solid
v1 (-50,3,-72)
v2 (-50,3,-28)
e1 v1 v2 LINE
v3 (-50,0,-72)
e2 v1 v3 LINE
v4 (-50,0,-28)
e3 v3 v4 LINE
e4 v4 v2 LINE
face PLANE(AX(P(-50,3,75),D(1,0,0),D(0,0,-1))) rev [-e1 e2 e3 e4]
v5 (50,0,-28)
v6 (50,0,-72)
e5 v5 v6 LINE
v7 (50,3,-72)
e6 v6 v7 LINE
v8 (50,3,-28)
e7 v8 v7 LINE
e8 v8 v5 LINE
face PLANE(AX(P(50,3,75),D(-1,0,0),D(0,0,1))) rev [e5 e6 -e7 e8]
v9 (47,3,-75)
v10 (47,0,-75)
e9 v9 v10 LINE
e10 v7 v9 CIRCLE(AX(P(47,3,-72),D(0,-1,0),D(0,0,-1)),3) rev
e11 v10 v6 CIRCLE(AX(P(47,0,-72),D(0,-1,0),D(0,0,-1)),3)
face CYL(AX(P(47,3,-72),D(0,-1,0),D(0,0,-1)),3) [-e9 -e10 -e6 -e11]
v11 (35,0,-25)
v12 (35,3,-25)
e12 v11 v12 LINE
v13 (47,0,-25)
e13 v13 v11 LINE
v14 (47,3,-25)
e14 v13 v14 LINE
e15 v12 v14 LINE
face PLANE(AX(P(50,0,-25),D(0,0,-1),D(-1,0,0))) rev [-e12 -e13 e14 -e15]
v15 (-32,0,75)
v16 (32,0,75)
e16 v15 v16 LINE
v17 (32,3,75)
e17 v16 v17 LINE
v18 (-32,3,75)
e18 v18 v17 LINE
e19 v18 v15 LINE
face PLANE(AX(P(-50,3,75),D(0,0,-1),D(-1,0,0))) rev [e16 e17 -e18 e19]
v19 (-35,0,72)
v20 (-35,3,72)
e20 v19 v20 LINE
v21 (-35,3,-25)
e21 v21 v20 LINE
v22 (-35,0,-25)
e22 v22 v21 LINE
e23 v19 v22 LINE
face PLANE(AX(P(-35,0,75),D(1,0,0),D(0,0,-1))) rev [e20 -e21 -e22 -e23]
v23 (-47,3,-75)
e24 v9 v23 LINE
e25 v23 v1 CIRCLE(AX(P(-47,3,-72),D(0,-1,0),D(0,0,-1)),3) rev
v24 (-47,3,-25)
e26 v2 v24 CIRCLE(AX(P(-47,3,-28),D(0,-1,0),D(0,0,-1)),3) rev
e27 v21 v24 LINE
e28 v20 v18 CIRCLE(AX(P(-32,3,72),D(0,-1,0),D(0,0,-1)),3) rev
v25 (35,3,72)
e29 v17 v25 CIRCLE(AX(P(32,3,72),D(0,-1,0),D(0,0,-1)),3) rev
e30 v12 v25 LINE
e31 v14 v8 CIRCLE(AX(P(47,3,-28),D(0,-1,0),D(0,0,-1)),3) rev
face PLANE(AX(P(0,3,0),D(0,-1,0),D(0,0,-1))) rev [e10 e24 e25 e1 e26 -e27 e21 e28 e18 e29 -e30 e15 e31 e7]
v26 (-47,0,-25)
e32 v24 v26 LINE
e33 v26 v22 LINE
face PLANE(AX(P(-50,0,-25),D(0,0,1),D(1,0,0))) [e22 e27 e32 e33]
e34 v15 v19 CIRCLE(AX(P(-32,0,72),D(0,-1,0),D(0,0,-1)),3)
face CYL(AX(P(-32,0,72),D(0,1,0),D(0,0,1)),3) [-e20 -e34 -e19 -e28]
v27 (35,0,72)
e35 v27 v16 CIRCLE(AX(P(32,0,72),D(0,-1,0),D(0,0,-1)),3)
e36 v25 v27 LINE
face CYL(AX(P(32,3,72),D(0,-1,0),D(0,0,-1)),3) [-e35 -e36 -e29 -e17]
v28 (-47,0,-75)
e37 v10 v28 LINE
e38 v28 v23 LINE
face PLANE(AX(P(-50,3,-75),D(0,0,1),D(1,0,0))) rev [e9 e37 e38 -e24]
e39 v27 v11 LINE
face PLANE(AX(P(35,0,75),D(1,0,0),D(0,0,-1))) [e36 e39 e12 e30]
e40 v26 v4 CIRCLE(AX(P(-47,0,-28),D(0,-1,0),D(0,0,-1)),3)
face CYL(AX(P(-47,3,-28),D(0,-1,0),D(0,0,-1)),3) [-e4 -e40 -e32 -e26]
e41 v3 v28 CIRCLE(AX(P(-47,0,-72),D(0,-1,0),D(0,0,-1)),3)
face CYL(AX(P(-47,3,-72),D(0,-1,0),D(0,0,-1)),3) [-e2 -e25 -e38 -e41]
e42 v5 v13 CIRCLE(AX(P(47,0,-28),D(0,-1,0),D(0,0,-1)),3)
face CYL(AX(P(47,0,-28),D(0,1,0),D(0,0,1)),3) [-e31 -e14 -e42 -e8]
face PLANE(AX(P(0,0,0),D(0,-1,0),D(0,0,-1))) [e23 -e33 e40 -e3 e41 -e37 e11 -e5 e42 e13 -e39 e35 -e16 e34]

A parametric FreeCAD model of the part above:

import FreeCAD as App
import Part
import Sketcher

V = App.Vector


def edges_at(feature, points):
    """Names of the edges that pass closest to the given points."""
    edges = feature.Shape.Edges
    near = lambda p: min(range(len(edges)), key=lambda i: edges[i].distToShape(Part.Vertex(*p))[0])
    return sorted({f"Edge{near(p) + 1}" for p in points})


def add_polygon(sketch, points):
    """Adds a closed chain of lines whose ends are joined by coincident constraints."""
    first, n = sketch.GeometryCount, len(points)
    for a, b in zip(points, points[1:] + points[:1]):
        sketch.addGeometry(Part.LineSegment(App.Vector(*a, 0), App.Vector(*b, 0)), False)
    for i in range(n):
        sketch.addConstraint(Sketcher.Constraint("Coincident", first + i, 2, first + (i + 1) % n, 1))

doc = App.newDocument("Part")
body = doc.addObject("PartDesign::Body", "Body")

# Sketch on XZ plane
sketch1 = body.newObject("Sketcher::SketchObject", "Sketch")
sketch1.AttachmentSupport = (doc.getObject("XZ_Plane"), [""])
sketch1.MapMode = "FlatFace"
add_polygon(sketch1, [(-50, -75), (-50, 75), (50, 75), (50, -75)])  # lines 0-3
sketch1.addConstraint(Sketcher.Constraint("Vertical", 0))
sketch1.addConstraint(Sketcher.Constraint("Horizontal", 1))
sketch1.addConstraint(Sketcher.Constraint("Vertical", 2))
sketch1.addConstraint(Sketcher.Constraint("Horizontal", 3))
sketch1.addConstraint(Sketcher.Constraint("Symmetric", 0, 2, 2, 2, -1, 1))
sketch1.addConstraint(Sketcher.Constraint("DistanceX", 1, 1, 1, 2, 100.0))
sketch1.addConstraint(Sketcher.Constraint("DistanceY", 0, 1, 0, 2, 150.0))
pad1 = body.newObject("PartDesign::Pad", "Pad")
pad1.Profile = sketch1
pad1.Length = 3
pad1.Reversed = True

# Sketch on XZ plane
sketch2 = body.newObject("Sketcher::SketchObject", "Sketch001")
sketch2.AttachmentSupport = (doc.getObject("XZ_Plane"), [""])
sketch2.MapMode = "FlatFace"
sketch2.AttachmentOffset = App.Placement(V(0, 0, -3), App.Rotation())
add_polygon(sketch2, [(-50, -25), (-50, 75), (-35, 75), (-35, -25)])  # lines 0-3
add_polygon(sketch2, [(35, -25), (35, 75), (50, 75), (50, -25)])  # lines 4-7
sketch2.addConstraint(Sketcher.Constraint("Vertical", 0))
sketch2.addConstraint(Sketcher.Constraint("Horizontal", 1))
sketch2.addConstraint(Sketcher.Constraint("Vertical", 2))
sketch2.addConstraint(Sketcher.Constraint("Horizontal", 3))
sketch2.addConstraint(Sketcher.Constraint("Vertical", 4))
sketch2.addConstraint(Sketcher.Constraint("Horizontal", 5))
sketch2.addConstraint(Sketcher.Constraint("Vertical", 6))
sketch2.addConstraint(Sketcher.Constraint("Horizontal", 7))
sketch2.addConstraint(Sketcher.Constraint("Symmetric", 1, 2, 4, 2, -2))
sketch2.addConstraint(Sketcher.Constraint("Symmetric", 3, 2, 6, 2, -2))
sketch2.addConstraint(Sketcher.Constraint("DistanceX", 1, 1, 1, 2, 15.0))
sketch2.addConstraint(Sketcher.Constraint("DistanceY", 0, 1, 0, 2, 100.0))
sketch2.addConstraint(Sketcher.Constraint("DistanceX", 0, 2, -1, 1, 50.0))
sketch2.addConstraint(Sketcher.Constraint("DistanceY", -1, 1, 0, 2, 75.0))
pocket1 = body.newObject("PartDesign::Pocket", "Pocket")
pocket1.Profile = sketch2
pocket1.Type = "ThroughAll"
pocket1.Midplane = True
doc.recompute()

fillet = body.newObject("PartDesign::Fillet", "Fillet")
fillet.Base = (pocket1, edges_at(pocket1, [
    (-50, 1.5, -25),
    (-35, 1.5, 75),
    (50, 1.5, -25),
    (35, 1.5, 75),
    (-50, 1.5, -75),
    (50, 1.5, -75),
]))
fillet.Radius = 3

doc.recompute()
